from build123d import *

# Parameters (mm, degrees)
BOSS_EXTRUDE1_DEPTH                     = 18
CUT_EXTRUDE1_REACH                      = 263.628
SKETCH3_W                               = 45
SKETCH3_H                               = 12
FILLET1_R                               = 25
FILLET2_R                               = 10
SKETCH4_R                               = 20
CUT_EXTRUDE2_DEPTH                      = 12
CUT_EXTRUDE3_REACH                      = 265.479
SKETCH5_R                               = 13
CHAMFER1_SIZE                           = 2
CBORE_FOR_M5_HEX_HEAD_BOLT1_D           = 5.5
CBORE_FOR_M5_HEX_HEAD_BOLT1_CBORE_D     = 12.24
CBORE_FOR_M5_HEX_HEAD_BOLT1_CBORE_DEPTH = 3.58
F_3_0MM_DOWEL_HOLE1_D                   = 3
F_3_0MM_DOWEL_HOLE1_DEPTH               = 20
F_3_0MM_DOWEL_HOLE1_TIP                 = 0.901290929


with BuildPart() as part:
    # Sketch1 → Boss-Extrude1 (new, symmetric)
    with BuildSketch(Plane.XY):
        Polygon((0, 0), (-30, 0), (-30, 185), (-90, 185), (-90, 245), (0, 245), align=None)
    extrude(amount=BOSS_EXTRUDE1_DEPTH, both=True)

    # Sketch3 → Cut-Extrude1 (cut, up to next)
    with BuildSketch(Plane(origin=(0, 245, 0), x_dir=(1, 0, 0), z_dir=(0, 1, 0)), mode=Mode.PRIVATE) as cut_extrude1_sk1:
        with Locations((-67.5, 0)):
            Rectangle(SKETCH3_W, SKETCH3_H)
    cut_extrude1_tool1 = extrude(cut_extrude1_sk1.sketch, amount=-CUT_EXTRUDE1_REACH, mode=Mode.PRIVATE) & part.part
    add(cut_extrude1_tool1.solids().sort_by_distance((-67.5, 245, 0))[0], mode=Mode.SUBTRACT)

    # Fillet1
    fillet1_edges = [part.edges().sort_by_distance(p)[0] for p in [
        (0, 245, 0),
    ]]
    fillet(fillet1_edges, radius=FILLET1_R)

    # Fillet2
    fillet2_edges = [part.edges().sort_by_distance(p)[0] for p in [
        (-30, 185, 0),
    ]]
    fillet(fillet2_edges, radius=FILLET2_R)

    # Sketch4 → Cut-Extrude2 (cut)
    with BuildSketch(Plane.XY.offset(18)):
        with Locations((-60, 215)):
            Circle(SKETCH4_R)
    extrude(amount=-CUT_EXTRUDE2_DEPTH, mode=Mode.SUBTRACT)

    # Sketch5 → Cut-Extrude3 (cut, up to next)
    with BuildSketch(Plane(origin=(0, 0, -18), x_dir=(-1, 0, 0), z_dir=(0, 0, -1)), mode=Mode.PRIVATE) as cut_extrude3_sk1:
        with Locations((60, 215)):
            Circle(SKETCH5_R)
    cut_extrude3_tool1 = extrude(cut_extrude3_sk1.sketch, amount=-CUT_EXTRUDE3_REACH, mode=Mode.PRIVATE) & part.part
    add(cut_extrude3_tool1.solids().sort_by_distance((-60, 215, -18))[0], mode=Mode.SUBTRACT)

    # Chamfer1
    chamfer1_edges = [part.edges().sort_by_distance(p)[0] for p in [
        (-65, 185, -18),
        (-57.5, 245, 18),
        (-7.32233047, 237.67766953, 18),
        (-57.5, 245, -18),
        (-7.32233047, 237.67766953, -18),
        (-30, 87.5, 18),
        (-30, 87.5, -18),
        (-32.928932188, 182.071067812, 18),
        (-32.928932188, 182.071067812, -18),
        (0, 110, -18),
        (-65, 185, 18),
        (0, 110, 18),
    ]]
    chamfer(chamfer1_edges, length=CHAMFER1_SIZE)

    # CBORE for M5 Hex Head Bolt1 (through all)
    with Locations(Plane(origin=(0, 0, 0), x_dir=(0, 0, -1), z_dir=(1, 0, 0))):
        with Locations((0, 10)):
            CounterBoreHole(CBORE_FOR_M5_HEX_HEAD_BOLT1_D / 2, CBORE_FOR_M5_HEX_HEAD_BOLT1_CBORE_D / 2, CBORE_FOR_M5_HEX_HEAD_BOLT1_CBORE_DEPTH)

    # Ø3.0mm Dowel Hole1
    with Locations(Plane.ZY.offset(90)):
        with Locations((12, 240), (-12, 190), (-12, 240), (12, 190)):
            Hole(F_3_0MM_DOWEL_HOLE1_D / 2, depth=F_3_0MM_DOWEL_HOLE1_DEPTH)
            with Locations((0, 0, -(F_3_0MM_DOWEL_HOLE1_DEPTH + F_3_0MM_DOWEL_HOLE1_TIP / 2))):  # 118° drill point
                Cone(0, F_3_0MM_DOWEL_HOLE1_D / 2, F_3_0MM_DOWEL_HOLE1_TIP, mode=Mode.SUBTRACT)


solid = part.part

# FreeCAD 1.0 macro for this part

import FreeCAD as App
import Part
import Sketcher
Q = App.Units.Quantity


def edges_at(feature, points):
    """Names of the edges that pass closest to the given points."""
    edges = feature.Shape.Edges
    near = lambda p: min(range(len(edges)), key=lambda i: edges[i].distToShape(Part.Vertex(*p))[0])
    return sorted({f"Edge{near(p) + 1}" for p in points})


def add_polygon(sketch, points):
    """Adds a closed chain of lines whose ends are joined by coincident constraints."""
    first, n = sketch.GeometryCount, len(points)
    for a, b in zip(points, points[1:] + points[:1]):
        sketch.addGeometry(Part.LineSegment(App.Vector(*a, 0), App.Vector(*b, 0)), False)
    for i in range(n):
        sketch.addConstraint(Sketcher.Constraint("Coincident", first + i, 2, first + (i + 1) % n, 1))

doc = App.newDocument("Part")
params = doc.addObject("Spreadsheet::Sheet", "Params")
for row, (alias, value) in enumerate([
    ("sketch1_width", "30 mm"),
    ("sketch1_width2", "90 mm"),
    ("sketch1_height", "245 mm"),
    ("pad1_length", "36 mm"),
    ("sketch2_width", "45 mm"),
    ("sketch2_height", "12 mm"),
    ("fillet_radius", "25 mm"),
    ("fillet2_radius", "10 mm"),
    ("sketch3_diameter", "40 mm"),
    ("pocket2_length", "12 mm"),
    ("sketch4_diameter", "26 mm"),
    ("chamfer_size", "2 mm"),
    ("sketch5_diameter", "5.5 mm"),
    ("hole_diameter", "5.5 mm"),
    ("hole_cbore_diameter", "12.24 mm"),
    ("hole_cbore_depth", "3.58 mm"),
    ("sketch6_diameter", "3 mm"),
    ("hole2_diameter", "3 mm"),
    ("hole2_depth", "20 mm"),
], start=1):
    params.set(f"A{row}", alias)
    params.set(f"B{row}", "=" + value)
    params.setAlias(f"B{row}", alias)

body = doc.addObject("PartDesign::Body", "Body")

sketch1 = doc.addObject("Sketcher::SketchObject", "Sketch")
body.addObject(sketch1)
sketch1.AttachmentSupport = (doc.XY_Plane, [""])
sketch1.MapMode = "FlatFace"
add_polygon(sketch1, [(-30, 0), (0, 0), (0, 245), (-90, 245), (-90, 185), (-30, 185)])
sketch1.addConstraint(Sketcher.Constraint("Horizontal", 0))
sketch1.addConstraint(Sketcher.Constraint("Vertical", 1))
sketch1.addConstraint(Sketcher.Constraint("Horizontal", 2))
sketch1.addConstraint(Sketcher.Constraint("Vertical", 3))
sketch1.addConstraint(Sketcher.Constraint("Horizontal", 4))
sketch1.addConstraint(Sketcher.Constraint("Vertical", 5))
sketch1.addConstraint(Sketcher.Constraint("Coincident", 0, 2, -1, 1))
sketch1.addConstraint(Sketcher.Constraint("Equal", 4, 3))
sketch1.addConstraint(Sketcher.Constraint("DistanceX", 0, 1, 0, 2, Q("30 mm")))
sketch1.addConstraint(Sketcher.Constraint("DistanceX", 2, 2, 2, 1, Q("90 mm")))
sketch1.addConstraint(Sketcher.Constraint("DistanceY", 1, 1, 1, 2, Q("245 mm")))
sketch1.setExpression("Constraints[14]", "Params.sketch1_width")
sketch1.setExpression("Constraints[15]", "Params.sketch1_width2")
sketch1.setExpression("Constraints[16]", "Params.sketch1_height")
pad1 = doc.addObject("PartDesign::Pad", "Pad")
body.addObject(pad1)
pad1.Profile = sketch1
pad1.setExpression("Length", "Params.pad1_length")
pad1.Midplane = True

sketch2 = doc.addObject("Sketcher::SketchObject", "Sketch001")
body.addObject(sketch2)
sketch2.AttachmentSupport = (doc.XZ_Plane, [""])
sketch2.MapMode = "FlatFace"
sketch2.AttachmentOffset = App.Placement(App.Vector(0, 0, -245), App.Rotation())
add_polygon(sketch2, [(-90, -6), (-90, 6), (-45, 6), (-45, -6)])
sketch2.addConstraint(Sketcher.Constraint("Vertical", 0))
sketch2.addConstraint(Sketcher.Constraint("Horizontal", 1))
sketch2.addConstraint(Sketcher.Constraint("Vertical", 2))
sketch2.addConstraint(Sketcher.Constraint("Horizontal", 3))
sketch2.addConstraint(Sketcher.Constraint("DistanceX", 1, 1, 1, 2, Q("45 mm")))
sketch2.addConstraint(Sketcher.Constraint("DistanceY", 0, 1, 0, 2, Q("12 mm")))
sketch2.addConstraint(Sketcher.Constraint("DistanceX", 0, 2, -1, 1, Q("90 mm")))
sketch2.addConstraint(Sketcher.Constraint("DistanceY", -1, 1, 0, 2, Q("6 mm")))
sketch2.setExpression("Constraints[8]", "Params.sketch2_width")
sketch2.setExpression("Constraints[9]", "Params.sketch2_height")
pocket1 = doc.addObject("PartDesign::Pocket", "Pocket")
body.addObject(pocket1)
pocket1.Profile = sketch2
pocket1.Type = "UpToFirst"
pocket1.Reversed = True
doc.recompute()

fillet = doc.addObject("PartDesign::Fillet", "Fillet")
body.addObject(fillet)
fillet.Base = (pocket1, edges_at(pocket1, [(0, 245, 0)]))
fillet.setExpression("Radius", "Params.fillet_radius")
doc.recompute()

fillet2 = doc.addObject("PartDesign::Fillet", "Fillet001")
body.addObject(fillet2)
fillet2.Base = (fillet, edges_at(fillet, [(-30, 185, 0)]))
fillet2.setExpression("Radius", "Params.fillet2_radius")

sketch3 = doc.addObject("Sketcher::SketchObject", "Sketch002")
body.addObject(sketch3)
sketch3.AttachmentSupport = (doc.XY_Plane, [""])
sketch3.MapMode = "FlatFace"
sketch3.AttachmentOffset = App.Placement(App.Vector(0, 0, 18), App.Rotation())
sketch3.addGeometry(Part.Circle(App.Vector(-60, 215, 0), App.Vector(0, 0, 1), 20), False)
sketch3.addConstraint(Sketcher.Constraint("Diameter", 0, Q("40 mm")))
sketch3.addConstraint(Sketcher.Constraint("DistanceX", 0, 3, -1, 1, Q("60 mm")))
sketch3.addConstraint(Sketcher.Constraint("DistanceY", -1, 1, 0, 3, Q("215 mm")))
sketch3.setExpression("Constraints[0]", "Params.sketch3_diameter")
pocket2 = doc.addObject("PartDesign::Pocket", "Pocket001")
body.addObject(pocket2)
pocket2.Profile = sketch3
pocket2.setExpression("Length", "Params.pocket2_length")

sketch4 = doc.addObject("Sketcher::SketchObject", "Sketch003")
body.addObject(sketch4)
sketch4.AttachmentSupport = (doc.XY_Plane, [""])
sketch4.MapMode = "FlatFace"
sketch4.AttachmentOffset = App.Placement(App.Vector(0, 0, -18), App.Rotation())
sketch4.addGeometry(Part.Circle(App.Vector(-60, 215, 0), App.Vector(0, 0, 1), 13), False)
sketch4.addConstraint(Sketcher.Constraint("Diameter", 0, Q("26 mm")))
sketch4.addConstraint(Sketcher.Constraint("DistanceX", 0, 3, -1, 1, Q("60 mm")))
sketch4.addConstraint(Sketcher.Constraint("DistanceY", -1, 1, 0, 3, Q("215 mm")))
sketch4.setExpression("Constraints[0]", "Params.sketch4_diameter")
pocket3 = doc.addObject("PartDesign::Pocket", "Pocket002")
body.addObject(pocket3)
pocket3.Profile = sketch4
pocket3.Type = "UpToFirst"
pocket3.Reversed = True
doc.recompute()

chamfer = doc.addObject("PartDesign::Chamfer", "Chamfer")
body.addObject(chamfer)
chamfer.Base = (pocket3, edges_at(pocket3, [
    (-65, 185, -18),
    (-57.5, 245, 18),
    (-7.322, 237.678, 18),
    (-57.5, 245, -18),
    (-7.322, 237.678, -18),
    (-30, 87.5, 18),
    (-30, 87.5, -18),
    (-32.929, 182.071, 18),
    (-32.929, 182.071, -18),
    (0, 110, -18),
    (-65, 185, 18),
    (0, 110, 18),
]))
chamfer.setExpression("Size", "Params.chamfer_size")

sketch5 = doc.addObject("Sketcher::SketchObject", "Sketch004")
body.addObject(sketch5)
sketch5.AttachmentSupport = (doc.YZ_Plane, [""])
sketch5.MapMode = "FlatFace"
sketch5.addGeometry(Part.Circle(App.Vector(10, 0, 0), App.Vector(0, 0, 1), 2.8), False)
sketch5.addConstraint(Sketcher.Constraint("PointOnObject", 0, 3, -1))
sketch5.addConstraint(Sketcher.Constraint("Diameter", 0, Q("5.5 mm")))
sketch5.addConstraint(Sketcher.Constraint("DistanceX", -1, 1, 0, 3, Q("10 mm")))
sketch5.setExpression("Constraints[1]", "Params.sketch5_diameter")
doc.recompute()
hole = doc.addObject("PartDesign::Hole", "Hole")
body.addObject(hole)
hole.Profile = sketch5
hole.ThreadType = "None"
hole.setExpression("Diameter", "Params.hole_diameter")
hole.DepthType = "ThroughAll"
hole.HoleCutType = "Counterbore"
hole.setExpression("HoleCutDiameter", "Params.hole_cbore_diameter")
hole.setExpression("HoleCutDepth", "Params.hole_cbore_depth")

sketch6 = doc.addObject("Sketcher::SketchObject", "Sketch005")
body.addObject(sketch6)
sketch6.AttachmentSupport = (doc.YZ_Plane, [""])
sketch6.MapMode = "FlatFace"
sketch6.AttachmentOffset = App.Placement(App.Vector(0, 0, -90), App.Rotation())
sketch6.addGeometry(Part.Circle(App.Vector(240, 12, 0), App.Vector(0, 0, 1), 1.5), False)
sketch6.addGeometry(Part.Circle(App.Vector(190, -12, 0), App.Vector(0, 0, 1), 1.5), False)
sketch6.addGeometry(Part.Circle(App.Vector(240, -12, 0), App.Vector(0, 0, 1), 1.5), False)
sketch6.addGeometry(Part.Circle(App.Vector(190, 12, 0), App.Vector(0, 0, 1), 1.5), False)
sketch6.addConstraint(Sketcher.Constraint("Equal", 0, 1))
sketch6.addConstraint(Sketcher.Constraint("Equal", 1, 2))
sketch6.addConstraint(Sketcher.Constraint("Equal", 2, 3))
sketch6.addConstraint(Sketcher.Constraint("Symmetric", 0, 3, 2, 3, -1))
sketch6.addConstraint(Sketcher.Constraint("Symmetric", 1, 3, 3, 3, -1))
sketch6.addConstraint(Sketcher.Constraint("Horizontal", 1, 3, 2, 3))
sketch6.addConstraint(Sketcher.Constraint("Diameter", 0, Q("3 mm")))
sketch6.addConstraint(Sketcher.Constraint("DistanceX", -1, 1, 0, 3, Q("240 mm")))
sketch6.addConstraint(Sketcher.Constraint("DistanceY", -1, 1, 0, 3, Q("12 mm")))
sketch6.addConstraint(Sketcher.Constraint("DistanceX", -1, 1, 1, 3, Q("190 mm")))
sketch6.setExpression("Constraints[6]", "Params.sketch6_diameter")
doc.recompute()
hole2 = doc.addObject("PartDesign::Hole", "Hole001")
body.addObject(hole2)
hole2.Profile = sketch6
hole2.ThreadType = "None"
hole2.setExpression("Diameter", "Params.hole2_diameter")
hole2.DepthType = "Dimension"
hole2.setExpression("Depth", "Params.hole2_depth")
hole2.DrillPoint = "Angled"
hole2.DrillPointAngle = 118
hole2.Reversed = True

doc.recompute()
